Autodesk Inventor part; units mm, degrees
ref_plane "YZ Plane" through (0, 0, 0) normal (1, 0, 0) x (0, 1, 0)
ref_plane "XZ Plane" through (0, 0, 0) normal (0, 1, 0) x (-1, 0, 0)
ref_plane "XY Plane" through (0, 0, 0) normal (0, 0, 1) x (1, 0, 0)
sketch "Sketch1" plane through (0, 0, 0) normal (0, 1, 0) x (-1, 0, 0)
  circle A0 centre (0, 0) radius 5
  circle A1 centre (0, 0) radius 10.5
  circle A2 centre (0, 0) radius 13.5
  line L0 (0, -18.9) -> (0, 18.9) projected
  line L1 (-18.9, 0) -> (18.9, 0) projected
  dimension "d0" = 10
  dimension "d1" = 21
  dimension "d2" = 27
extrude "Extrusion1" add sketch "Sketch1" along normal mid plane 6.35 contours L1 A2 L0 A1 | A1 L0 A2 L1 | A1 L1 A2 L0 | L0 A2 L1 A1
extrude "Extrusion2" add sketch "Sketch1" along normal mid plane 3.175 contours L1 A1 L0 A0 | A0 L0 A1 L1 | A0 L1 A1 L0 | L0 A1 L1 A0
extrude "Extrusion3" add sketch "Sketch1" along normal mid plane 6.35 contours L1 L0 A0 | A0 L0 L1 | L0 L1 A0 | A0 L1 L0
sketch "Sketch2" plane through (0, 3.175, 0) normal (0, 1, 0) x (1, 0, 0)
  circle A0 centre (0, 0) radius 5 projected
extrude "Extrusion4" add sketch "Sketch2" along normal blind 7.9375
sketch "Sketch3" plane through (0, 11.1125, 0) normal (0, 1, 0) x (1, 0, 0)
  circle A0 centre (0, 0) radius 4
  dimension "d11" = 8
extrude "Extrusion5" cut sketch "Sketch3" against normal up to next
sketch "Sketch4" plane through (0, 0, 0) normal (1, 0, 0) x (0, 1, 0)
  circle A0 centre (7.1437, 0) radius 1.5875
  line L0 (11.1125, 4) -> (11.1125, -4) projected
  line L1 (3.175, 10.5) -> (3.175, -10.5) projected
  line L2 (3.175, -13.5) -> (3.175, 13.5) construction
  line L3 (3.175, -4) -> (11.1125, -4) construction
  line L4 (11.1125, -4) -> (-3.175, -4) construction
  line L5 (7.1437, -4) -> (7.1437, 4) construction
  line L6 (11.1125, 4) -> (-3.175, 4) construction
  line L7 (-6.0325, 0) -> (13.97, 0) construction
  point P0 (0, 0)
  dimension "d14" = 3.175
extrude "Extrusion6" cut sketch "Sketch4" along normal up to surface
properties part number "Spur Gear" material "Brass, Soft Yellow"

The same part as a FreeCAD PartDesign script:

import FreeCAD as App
import Part
import Sketcher
from FreeCAD import Vector
Q = App.Units.Quantity

doc = App.newDocument("Part")
params = doc.addObject("Spreadsheet::Sheet", "Params")
for row, (alias, value) in enumerate([
    ("sketch1_diameter", "1.063 in"),
    ("pad1_length", "0.25 in"),
    ("pad2_length", "0.125 in"),
    ("pad3_length", "0.25 in"),
    ("pad4_length", "0.3125 in"),
    ("sketch6_diameter", "0.125 in"),
    ("pocket2_length", "5 mm"),
], start=1):
    params.set(f"A{row}", alias)
    params.set(f"B{row}", "=" + value)
    params.setAlias(f"B{row}", alias)

body = doc.addObject("PartDesign::Body", "Body")

# Sketch on XZ plane
sketch1 = doc.addObject("Sketcher::SketchObject", "Sketch")
body.addObject(sketch1)
sketch1.AttachmentSupport = (doc.XZ_Plane, [""])
sketch1.MapMode = "FlatFace"
sketch1.addGeometry(Part.Circle(Vector(0, 0, 0), Vector(0, 0, 1), 14), False)
sketch1.addGeometry(Part.Circle(Vector(0, 0, 0), Vector(0, 0, 1), 10), False)
sketch1.addConstraint(Sketcher.Constraint("Coincident", 0, 3, -1, 1))
sketch1.addConstraint(Sketcher.Constraint("Coincident", 1, 3, -1, 1))
sketch1.addConstraint(Sketcher.Constraint("Diameter", 0, Q("1.063 in")))
sketch1.addConstraint(Sketcher.Constraint("Diameter", 1, 21.0))
sketch1.setExpression("Constraints[2]", "Params.sketch1_diameter")
pad1 = doc.addObject("PartDesign::Pad", "Pad")
body.addObject(pad1)
pad1.Profile = sketch1
pad1.setExpression("Length", "Params.pad1_length")
pad1.Midplane = True

# Sketch on XZ plane
sketch2 = doc.addObject("Sketcher::SketchObject", "Sketch001")
body.addObject(sketch2)
sketch2.AttachmentSupport = (doc.XZ_Plane, [""])
sketch2.MapMode = "FlatFace"
sketch2.addGeometry(Part.Circle(Vector(0, 0, 0), Vector(0, 0, 1), 10), False)
sketch2.addGeometry(Part.Circle(Vector(0, 0, 0), Vector(0, 0, 1), 5), False)
sketch2.addConstraint(Sketcher.Constraint("Coincident", 0, 3, -1, 1))
sketch2.addConstraint(Sketcher.Constraint("Coincident", 1, 3, -1, 1))
sketch2.addConstraint(Sketcher.Constraint("Diameter", 1, Q("0.3937 in")))
sketch2.addConstraint(Sketcher.Constraint("Diameter", 0, 21.0))
pad2 = doc.addObject("PartDesign::Pad", "Pad001")
body.addObject(pad2)
pad2.Profile = sketch2
pad2.setExpression("Length", "Params.pad2_length")
pad2.Midplane = True

# Sketch on XZ plane
sketch3 = doc.addObject("Sketcher::SketchObject", "Sketch002")
body.addObject(sketch3)
sketch3.AttachmentSupport = (doc.XZ_Plane, [""])
sketch3.MapMode = "FlatFace"
sketch3.addGeometry(Part.Circle(Vector(0, 0, 0), Vector(0, 0, 1), 5), False)
sketch3.addConstraint(Sketcher.Constraint("Coincident", 0, 3, -1, 1))
sketch3.addConstraint(Sketcher.Constraint("Diameter", 0, Q("0.3937 in")))
pad3 = doc.addObject("PartDesign::Pad", "Pad002")
body.addObject(pad3)
pad3.Profile = sketch3
pad3.setExpression("Length", "Params.pad3_length")
pad3.Midplane = True

# Sketch on XZ plane
sketch4 = doc.addObject("Sketcher::SketchObject", "Sketch003")
body.addObject(sketch4)
sketch4.AttachmentSupport = (doc.XZ_Plane, [""])
sketch4.MapMode = "FlatFace"
sketch4.AttachmentOffset = App.Placement(Vector(0, 0, -0.125 * 25.4), App.Rotation())
sketch4.addGeometry(Part.Circle(Vector(0, 0, 0), Vector(0, 0, 1), 5), False)
sketch4.addConstraint(Sketcher.Constraint("Coincident", 0, 3, -1, 1))
sketch4.addConstraint(Sketcher.Constraint("Diameter", 0, Q("0.3937 in")))
pad4 = doc.addObject("PartDesign::Pad", "Pad003")
body.addObject(pad4)
pad4.Profile = sketch4
pad4.setExpression("Length", "Params.pad4_length")
pad4.Reversed = True

# Sketch on XZ plane
sketch5 = doc.addObject("Sketcher::SketchObject", "Sketch004")
body.addObject(sketch5)
sketch5.AttachmentSupport = (doc.XZ_Plane, [""])
sketch5.MapMode = "FlatFace"
sketch5.AttachmentOffset = App.Placement(Vector(0, 0, -0.4375 * 25.4), App.Rotation())
sketch5.addGeometry(Part.Circle(Vector(0, 0, 0), Vector(0, 0, 1), 4), False)
sketch5.addConstraint(Sketcher.Constraint("Coincident", 0, 3, -1, 1))
sketch5.addConstraint(Sketcher.Constraint("Diameter", 0, 8.0))
pocket1 = doc.addObject("PartDesign::Pocket", "Pocket")
body.addObject(pocket1)
pocket1.Profile = sketch5
pocket1.Type = "UpToFirst"
pocket1.Reversed = True

# Sketch on YZ plane
sketch6 = doc.addObject("Sketcher::SketchObject", "Sketch005")
body.addObject(sketch6)
sketch6.AttachmentSupport = (doc.YZ_Plane, [""])
sketch6.MapMode = "FlatFace"
sketch6.addGeometry(Part.Circle(Vector(7.1, 0, 0), Vector(0, 0, 1), 1.6), False)
sketch6.addConstraint(Sketcher.Constraint("PointOnObject", 0, 3, -1))
sketch6.addConstraint(Sketcher.Constraint("Diameter", 0, Q("0.125 in")))
sketch6.addConstraint(Sketcher.Constraint("DistanceX", -1, 1, 0, 3, Q("0.281248 in")))
sketch6.setExpression("Constraints[1]", "Params.sketch6_diameter")
pocket2 = doc.addObject("PartDesign::Pocket", "Pocket001")
body.addObject(pocket2)
pocket2.Profile = sketch6
pocket2.setExpression("Length", "Params.pocket2_length")
pocket2.Reversed = True

doc.recompute()
